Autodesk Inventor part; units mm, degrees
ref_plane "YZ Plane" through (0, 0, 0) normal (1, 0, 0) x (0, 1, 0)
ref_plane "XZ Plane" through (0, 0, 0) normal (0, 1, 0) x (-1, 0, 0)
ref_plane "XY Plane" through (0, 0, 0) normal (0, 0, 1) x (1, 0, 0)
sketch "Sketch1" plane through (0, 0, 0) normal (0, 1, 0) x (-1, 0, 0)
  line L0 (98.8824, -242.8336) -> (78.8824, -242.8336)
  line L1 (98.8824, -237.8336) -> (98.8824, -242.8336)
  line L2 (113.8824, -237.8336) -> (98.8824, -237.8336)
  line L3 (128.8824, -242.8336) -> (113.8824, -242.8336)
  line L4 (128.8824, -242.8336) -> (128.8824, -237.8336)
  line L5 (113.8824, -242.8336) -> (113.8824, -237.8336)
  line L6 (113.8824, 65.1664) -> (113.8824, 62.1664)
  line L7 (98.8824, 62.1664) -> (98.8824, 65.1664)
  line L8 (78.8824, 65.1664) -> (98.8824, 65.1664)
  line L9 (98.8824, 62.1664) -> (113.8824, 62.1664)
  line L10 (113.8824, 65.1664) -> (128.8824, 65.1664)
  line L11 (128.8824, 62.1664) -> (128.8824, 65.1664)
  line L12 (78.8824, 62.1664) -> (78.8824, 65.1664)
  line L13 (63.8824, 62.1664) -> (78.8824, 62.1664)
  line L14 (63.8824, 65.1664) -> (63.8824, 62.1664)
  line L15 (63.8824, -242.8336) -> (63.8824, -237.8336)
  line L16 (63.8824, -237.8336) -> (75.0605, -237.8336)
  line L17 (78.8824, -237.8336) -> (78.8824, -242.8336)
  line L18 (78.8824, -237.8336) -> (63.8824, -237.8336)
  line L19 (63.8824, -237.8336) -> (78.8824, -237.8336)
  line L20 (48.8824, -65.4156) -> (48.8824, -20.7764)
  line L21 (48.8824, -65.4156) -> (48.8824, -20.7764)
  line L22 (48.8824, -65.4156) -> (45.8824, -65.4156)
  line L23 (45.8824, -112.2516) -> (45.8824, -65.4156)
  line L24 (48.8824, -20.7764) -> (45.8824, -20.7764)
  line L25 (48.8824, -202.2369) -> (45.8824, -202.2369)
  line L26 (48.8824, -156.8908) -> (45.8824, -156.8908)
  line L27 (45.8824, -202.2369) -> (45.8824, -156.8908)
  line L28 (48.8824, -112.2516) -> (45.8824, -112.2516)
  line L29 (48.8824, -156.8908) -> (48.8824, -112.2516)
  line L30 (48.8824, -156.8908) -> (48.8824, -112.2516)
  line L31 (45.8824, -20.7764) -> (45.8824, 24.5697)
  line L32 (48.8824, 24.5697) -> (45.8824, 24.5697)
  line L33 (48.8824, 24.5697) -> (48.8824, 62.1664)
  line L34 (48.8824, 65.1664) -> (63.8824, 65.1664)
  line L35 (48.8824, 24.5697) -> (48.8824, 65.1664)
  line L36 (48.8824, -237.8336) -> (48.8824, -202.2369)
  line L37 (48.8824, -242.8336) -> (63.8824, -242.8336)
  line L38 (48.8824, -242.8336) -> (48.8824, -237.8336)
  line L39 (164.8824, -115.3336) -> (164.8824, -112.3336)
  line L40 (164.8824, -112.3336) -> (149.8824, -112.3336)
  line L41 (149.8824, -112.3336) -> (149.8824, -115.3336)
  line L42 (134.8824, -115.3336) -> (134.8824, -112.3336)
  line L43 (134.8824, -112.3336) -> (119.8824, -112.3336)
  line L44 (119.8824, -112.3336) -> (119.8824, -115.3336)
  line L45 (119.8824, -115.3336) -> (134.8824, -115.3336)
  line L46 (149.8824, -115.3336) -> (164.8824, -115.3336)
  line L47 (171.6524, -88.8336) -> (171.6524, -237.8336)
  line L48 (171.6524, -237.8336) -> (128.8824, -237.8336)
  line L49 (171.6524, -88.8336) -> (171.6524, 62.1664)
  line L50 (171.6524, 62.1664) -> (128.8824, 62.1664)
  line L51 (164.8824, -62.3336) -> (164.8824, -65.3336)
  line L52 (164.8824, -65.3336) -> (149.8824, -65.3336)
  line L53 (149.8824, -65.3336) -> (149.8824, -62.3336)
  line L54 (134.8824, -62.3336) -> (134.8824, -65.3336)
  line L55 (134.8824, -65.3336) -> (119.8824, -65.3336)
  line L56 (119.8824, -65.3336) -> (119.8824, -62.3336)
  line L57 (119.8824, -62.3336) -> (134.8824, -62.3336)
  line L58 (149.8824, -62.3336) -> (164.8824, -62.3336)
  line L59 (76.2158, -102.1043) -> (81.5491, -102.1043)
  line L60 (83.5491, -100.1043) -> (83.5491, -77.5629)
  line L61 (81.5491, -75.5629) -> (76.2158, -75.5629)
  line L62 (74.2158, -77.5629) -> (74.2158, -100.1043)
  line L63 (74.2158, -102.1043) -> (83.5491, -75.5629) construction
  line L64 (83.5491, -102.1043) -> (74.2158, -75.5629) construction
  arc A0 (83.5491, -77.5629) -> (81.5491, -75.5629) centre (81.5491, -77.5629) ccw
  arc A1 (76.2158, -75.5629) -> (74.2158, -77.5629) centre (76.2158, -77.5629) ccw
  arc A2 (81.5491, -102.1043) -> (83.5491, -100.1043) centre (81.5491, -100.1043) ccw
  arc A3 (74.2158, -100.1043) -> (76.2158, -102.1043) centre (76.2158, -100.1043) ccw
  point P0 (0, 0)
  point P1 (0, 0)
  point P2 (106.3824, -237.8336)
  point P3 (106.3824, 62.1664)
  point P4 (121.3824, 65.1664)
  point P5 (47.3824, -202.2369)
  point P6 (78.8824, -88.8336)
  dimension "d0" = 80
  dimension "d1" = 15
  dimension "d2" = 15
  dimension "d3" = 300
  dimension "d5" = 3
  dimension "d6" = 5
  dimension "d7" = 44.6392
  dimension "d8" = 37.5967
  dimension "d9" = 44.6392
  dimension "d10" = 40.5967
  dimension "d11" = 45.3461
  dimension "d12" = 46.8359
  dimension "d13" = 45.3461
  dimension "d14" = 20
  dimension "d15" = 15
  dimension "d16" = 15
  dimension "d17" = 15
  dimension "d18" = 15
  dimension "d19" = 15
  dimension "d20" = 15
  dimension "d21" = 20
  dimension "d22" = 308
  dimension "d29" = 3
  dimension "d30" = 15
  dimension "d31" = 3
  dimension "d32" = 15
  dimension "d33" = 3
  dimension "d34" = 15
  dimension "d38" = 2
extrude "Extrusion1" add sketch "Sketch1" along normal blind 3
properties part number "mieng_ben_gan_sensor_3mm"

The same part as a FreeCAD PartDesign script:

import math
import FreeCAD as App
import Part
import Sketcher

V = App.Vector

doc = App.newDocument("Part")
body = doc.addObject("PartDesign::Body", "Body")

sketch1 = body.newObject("Sketcher::SketchObject", "Sketch")
sketch1.AttachmentSupport = (doc.getObject("XZ_Plane"), [""])
sketch1.MapMode = "FlatFace"
sketch1.addGeometry([
    Part.LineSegment(V(-78.9, -242.8, 0), V(-98.9, -242.8, 0)),
    Part.LineSegment(V(-98.9, -242.8, 0), V(-98.9, -237.8, 0)),
    Part.LineSegment(V(-98.9, -237.8, 0), V(-113.9, -237.8, 0)),
    Part.LineSegment(V(-113.9, -237.8, 0), V(-113.9, -242.8, 0)),
    Part.LineSegment(V(-113.9, -242.8, 0), V(-128.9, -242.8, 0)),
    Part.LineSegment(V(-128.9, -242.8, 0), V(-128.9, -237.8, 0)),
    Part.LineSegment(V(-128.9, -237.8, 0), V(-171.7, -237.8, 0)),
    Part.LineSegment(V(-171.7, -237.8, 0), V(-171.7, 62.2, 0)),
    Part.LineSegment(V(-171.7, 62.2, 0), V(-128.9, 62.2, 0)),
    Part.LineSegment(V(-128.9, 62.2, 0), V(-128.9, 65.2, 0)),
    Part.LineSegment(V(-128.9, 65.2, 0), V(-113.9, 65.2, 0)),
    Part.LineSegment(V(-113.9, 65.2, 0), V(-113.9, 62.2, 0)),
    Part.LineSegment(V(-113.9, 62.2, 0), V(-98.9, 62.2, 0)),
    Part.LineSegment(V(-98.9, 62.2, 0), V(-98.9, 65.2, 0)),
    Part.LineSegment(V(-98.9, 65.2, 0), V(-78.9, 65.2, 0)),
    Part.LineSegment(V(-78.9, 65.2, 0), V(-78.9, 62.2, 0)),
    Part.LineSegment(V(-78.9, 62.2, 0), V(-63.9, 62.2, 0)),
    Part.LineSegment(V(-63.9, 62.2, 0), V(-63.9, 65.2, 0)),
    Part.LineSegment(V(-63.9, 65.2, 0), V(-48.9, 65.2, 0)),
    Part.LineSegment(V(-48.9, 65.2, 0), V(-48.9, 24.6, 0)),
    Part.LineSegment(V(-48.9, 24.6, 0), V(-45.9, 24.6, 0)),
    Part.LineSegment(V(-45.9, 24.6, 0), V(-45.9, -20.8, 0)),
    Part.LineSegment(V(-45.9, -20.8, 0), V(-48.9, -20.8, 0)),
    Part.LineSegment(V(-48.9, -20.8, 0), V(-48.9, -65.4, 0)),
    Part.LineSegment(V(-48.9, -65.4, 0), V(-45.9, -65.4, 0)),
    Part.LineSegment(V(-45.9, -65.4, 0), V(-45.9, -112.3, 0)),
    Part.LineSegment(V(-45.9, -112.3, 0), V(-48.9, -112.3, 0)),
    Part.LineSegment(V(-48.9, -112.3, 0), V(-48.9, -156.9, 0)),
    Part.LineSegment(V(-48.9, -156.9, 0), V(-45.9, -156.9, 0)),
    Part.LineSegment(V(-45.9, -156.9, 0), V(-45.9, -202.2, 0)),
    Part.LineSegment(V(-45.9, -202.2, 0), V(-48.9, -202.2, 0)),
    Part.LineSegment(V(-48.9, -202.2, 0), V(-48.9, -242.8, 0)),
    Part.LineSegment(V(-48.9, -242.8, 0), V(-63.9, -242.8, 0)),
    Part.LineSegment(V(-63.9, -242.8, 0), V(-63.9, -237.8, 0)),
    Part.LineSegment(V(-63.9, -237.8, 0), V(-78.9, -237.8, 0)),
    Part.LineSegment(V(-78.9, -237.8, 0), V(-78.9, -242.8, 0)),
    Part.LineSegment(V(-134.9, -112.3, 0), V(-134.9, -115.3, 0)),
    Part.LineSegment(V(-134.9, -115.3, 0), V(-119.9, -115.3, 0)),
    Part.LineSegment(V(-119.9, -115.3, 0), V(-119.9, -112.3, 0)),
    Part.LineSegment(V(-119.9, -112.3, 0), V(-134.9, -112.3, 0)),
    Part.LineSegment(V(-164.9, -112.3, 0), V(-164.9, -115.3, 0)),
    Part.LineSegment(V(-164.9, -115.3, 0), V(-149.9, -115.3, 0)),
    Part.LineSegment(V(-149.9, -115.3, 0), V(-149.9, -112.3, 0)),
    Part.LineSegment(V(-149.9, -112.3, 0), V(-164.9, -112.3, 0)),
    Part.LineSegment(V(-81.5, -102.1, 0), V(-76.2, -102.1, 0)),
    Part.ArcOfCircle(Part.Circle(V(-76.2, -100.1, 0), V(0, 0, 1), 2), math.radians(-90), math.radians(0)),
    Part.LineSegment(V(-74.2, -100.1, 0), V(-74.2, -77.6, 0)),
    Part.ArcOfCircle(Part.Circle(V(-76.2, -77.6, 0), V(0, 0, 1), 2), math.radians(0), math.radians(90)),
    Part.LineSegment(V(-76.2, -75.6, 0), V(-81.5, -75.6, 0)),
    Part.ArcOfCircle(Part.Circle(V(-81.5, -77.6, 0), V(0, 0, 1), 2), math.radians(90), math.radians(180)),
    Part.LineSegment(V(-83.5, -77.6, 0), V(-83.5, -100.1, 0)),
    Part.ArcOfCircle(Part.Circle(V(-81.5, -100.1, 0), V(0, 0, 1), 2), math.radians(180), math.radians(270)),
    Part.LineSegment(V(-119.9, -62.3, 0), V(-134.9, -62.3, 0)),
    Part.LineSegment(V(-134.9, -62.3, 0), V(-134.9, -65.3, 0)),
    Part.LineSegment(V(-134.9, -65.3, 0), V(-119.9, -65.3, 0)),
    Part.LineSegment(V(-119.9, -65.3, 0), V(-119.9, -62.3, 0)),
    Part.LineSegment(V(-149.9, -62.3, 0), V(-164.9, -62.3, 0)),
    Part.LineSegment(V(-164.9, -62.3, 0), V(-164.9, -65.3, 0)),
    Part.LineSegment(V(-164.9, -65.3, 0), V(-149.9, -65.3, 0)),
    Part.LineSegment(V(-149.9, -65.3, 0), V(-149.9, -62.3, 0)),
], False)
sketch1.addConstraint([
    Sketcher.Constraint("Coincident", 0, 2, 1, 1),
    Sketcher.Constraint("Coincident", 1, 2, 2, 1),
    Sketcher.Constraint("Coincident", 2, 2, 3, 1),
    Sketcher.Constraint("Coincident", 3, 2, 4, 1),
    Sketcher.Constraint("Coincident", 4, 2, 5, 1),
    Sketcher.Constraint("Coincident", 5, 2, 6, 1),
    Sketcher.Constraint("Coincident", 6, 2, 7, 1),
    Sketcher.Constraint("Coincident", 7, 2, 8, 1),
    Sketcher.Constraint("Coincident", 8, 2, 9, 1),
    Sketcher.Constraint("Coincident", 9, 2, 10, 1),
    Sketcher.Constraint("Coincident", 10, 2, 11, 1),
    Sketcher.Constraint("Coincident", 11, 2, 12, 1),
    Sketcher.Constraint("Coincident", 12, 2, 13, 1),
    Sketcher.Constraint("Coincident", 13, 2, 14, 1),
    Sketcher.Constraint("Coincident", 14, 2, 15, 1),
    Sketcher.Constraint("Coincident", 15, 2, 16, 1),
    Sketcher.Constraint("Coincident", 16, 2, 17, 1),
    Sketcher.Constraint("Coincident", 17, 2, 18, 1),
    Sketcher.Constraint("Coincident", 18, 2, 19, 1),
    Sketcher.Constraint("Coincident", 19, 2, 20, 1),
    Sketcher.Constraint("Coincident", 20, 2, 21, 1),
    Sketcher.Constraint("Coincident", 21, 2, 22, 1),
    Sketcher.Constraint("Coincident", 22, 2, 23, 1),
    Sketcher.Constraint("Coincident", 23, 2, 24, 1),
    Sketcher.Constraint("Coincident", 24, 2, 25, 1),
    Sketcher.Constraint("Coincident", 25, 2, 26, 1),
    Sketcher.Constraint("Coincident", 26, 2, 27, 1),
    Sketcher.Constraint("Coincident", 27, 2, 28, 1),
    Sketcher.Constraint("Coincident", 28, 2, 29, 1),
    Sketcher.Constraint("Coincident", 29, 2, 30, 1),
    Sketcher.Constraint("Coincident", 30, 2, 31, 1),
    Sketcher.Constraint("Coincident", 31, 2, 32, 1),
    Sketcher.Constraint("Coincident", 32, 2, 33, 1),
    Sketcher.Constraint("Coincident", 33, 2, 34, 1),
    Sketcher.Constraint("Coincident", 34, 2, 35, 1),
    Sketcher.Constraint("Coincident", 35, 2, 0, 1),
    Sketcher.Constraint("Coincident", 36, 2, 37, 1),
    Sketcher.Constraint("Coincident", 37, 2, 38, 1),
    Sketcher.Constraint("Coincident", 38, 2, 39, 1),
    Sketcher.Constraint("Coincident", 39, 2, 36, 1),
    Sketcher.Constraint("Coincident", 40, 2, 41, 1),
    Sketcher.Constraint("Coincident", 41, 2, 42, 1),
    Sketcher.Constraint("Coincident", 42, 2, 43, 1),
    Sketcher.Constraint("Coincident", 43, 2, 40, 1),
    Sketcher.Constraint("Tangent", 44, 2, 45, 1),
    Sketcher.Constraint("Tangent", 45, 2, 46, 1),
    Sketcher.Constraint("Tangent", 46, 2, 47, 1),
    Sketcher.Constraint("Tangent", 47, 2, 48, 1),
    Sketcher.Constraint("Tangent", 48, 2, 49, 1),
    Sketcher.Constraint("Tangent", 49, 2, 50, 1),
    Sketcher.Constraint("Tangent", 50, 2, 51, 1),
    Sketcher.Constraint("Tangent", 51, 2, 44, 1),
    Sketcher.Constraint("Coincident", 52, 2, 53, 1),
    Sketcher.Constraint("Coincident", 53, 2, 54, 1),
    Sketcher.Constraint("Coincident", 54, 2, 55, 1),
    Sketcher.Constraint("Coincident", 55, 2, 52, 1),
    Sketcher.Constraint("Coincident", 56, 2, 57, 1),
    Sketcher.Constraint("Coincident", 57, 2, 58, 1),
    Sketcher.Constraint("Coincident", 58, 2, 59, 1),
    Sketcher.Constraint("Coincident", 59, 2, 56, 1),
    Sketcher.Constraint("Horizontal", 0),
    Sketcher.Constraint("Vertical", 1),
    Sketcher.Constraint("Horizontal", 2),
    Sketcher.Constraint("Vertical", 3),
    Sketcher.Constraint("Horizontal", 4),
    Sketcher.Constraint("Vertical", 5),
    Sketcher.Constraint("Horizontal", 6),
    Sketcher.Constraint("Vertical", 7),
    Sketcher.Constraint("Horizontal", 8),
    Sketcher.Constraint("Vertical", 9),
    Sketcher.Constraint("Horizontal", 10),
    Sketcher.Constraint("Vertical", 11),
    Sketcher.Constraint("Horizontal", 12),
    Sketcher.Constraint("Vertical", 13),
    Sketcher.Constraint("Horizontal", 14),
    Sketcher.Constraint("Vertical", 15),
    Sketcher.Constraint("Horizontal", 16),
    Sketcher.Constraint("Vertical", 17),
    Sketcher.Constraint("Horizontal", 18),
    Sketcher.Constraint("Vertical", 19),
    Sketcher.Constraint("Horizontal", 20),
    Sketcher.Constraint("Vertical", 21),
    Sketcher.Constraint("Horizontal", 22),
    Sketcher.Constraint("Vertical", 23),
    Sketcher.Constraint("Horizontal", 24),
    Sketcher.Constraint("Vertical", 25),
    Sketcher.Constraint("Horizontal", 26),
    Sketcher.Constraint("Vertical", 27),
    Sketcher.Constraint("Horizontal", 28),
    Sketcher.Constraint("Vertical", 29),
    Sketcher.Constraint("Horizontal", 30),
    Sketcher.Constraint("Vertical", 31),
    Sketcher.Constraint("Horizontal", 32),
    Sketcher.Constraint("Vertical", 33),
    Sketcher.Constraint("Horizontal", 34),
    Sketcher.Constraint("Vertical", 35),
    Sketcher.Constraint("Vertical", 36),
    Sketcher.Constraint("Horizontal", 37),
    Sketcher.Constraint("Vertical", 38),
    Sketcher.Constraint("Horizontal", 39),
    Sketcher.Constraint("Vertical", 40),
    Sketcher.Constraint("Horizontal", 41),
    Sketcher.Constraint("Vertical", 42),
    Sketcher.Constraint("Horizontal", 43),
    Sketcher.Constraint("Horizontal", 44),
    Sketcher.Constraint("Vertical", 46),
    Sketcher.Constraint("Horizontal", 48),
    Sketcher.Constraint("Vertical", 50),
    Sketcher.Constraint("Horizontal", 52),
    Sketcher.Constraint("Vertical", 53),
    Sketcher.Constraint("Horizontal", 54),
    Sketcher.Constraint("Vertical", 55),
    Sketcher.Constraint("Horizontal", 56),
    Sketcher.Constraint("Vertical", 57),
    Sketcher.Constraint("Horizontal", 58),
    Sketcher.Constraint("Vertical", 59),
    Sketcher.Constraint("Equal", 45, 47),
    Sketcher.Constraint("Equal", 47, 49),
    Sketcher.Constraint("Equal", 49, 51),
    Sketcher.Constraint("Horizontal", 0, 2, 3, 2),
    Sketcher.Constraint("Horizontal", 2, 2, 5, 2),
    Sketcher.Constraint("Horizontal", 8, 2, 11, 2),
    Sketcher.Constraint("Horizontal", 10, 2, 13, 2),
    Sketcher.Constraint("Horizontal", 12, 2, 15, 2),
    Sketcher.Constraint("Horizontal", 14, 2, 17, 2),
    Sketcher.Constraint("Horizontal", 4, 2, 31, 2),
    Sketcher.Constraint("Horizontal", 6, 2, 33, 2),
    Sketcher.Constraint("Horizontal", 37, 2, 40, 2),
    Sketcher.Constraint("Horizontal", 39, 2, 42, 2),
    Sketcher.Constraint("Horizontal", 55, 2, 56, 2),
    Sketcher.Constraint("Horizontal", 54, 2, 57, 2),
    Sketcher.Constraint("Vertical", 5, 2, 8, 2),
    Sketcher.Constraint("Vertical", 3, 2, 10, 2),
    Sketcher.Constraint("Vertical", 1, 2, 12, 2),
    Sketcher.Constraint("Vertical", 19, 2, 22, 2),
    Sketcher.Constraint("Vertical", 21, 2, 24, 2),
    Sketcher.Constraint("Vertical", 23, 2, 26, 2),
    Sketcher.Constraint("Vertical", 25, 2, 28, 2),
    Sketcher.Constraint("Vertical", 27, 2, 30, 2),
    Sketcher.Constraint("Vertical", 17, 2, 32, 2),
    Sketcher.Constraint("Vertical", 15, 2, 34, 2),
    Sketcher.Constraint("Vertical", 39, 2, 52, 2),
    Sketcher.Constraint("Vertical", 38, 2, 54, 2),
    Sketcher.Constraint("Vertical", 43, 2, 56, 2),
    Sketcher.Constraint("Vertical", 42, 2, 58, 2),
    Sketcher.Constraint("Equal", 2, 4),
    Sketcher.Constraint("Equal", 12, 16),
    Sketcher.Constraint("Equal", 16, 18),
    Sketcher.Constraint("Equal", 34, 37),
    Sketcher.Constraint("Equal", 39, 41),
    Sketcher.Constraint("Equal", 30, 9),
    Sketcher.Constraint("Equal", 23, 27),
    Sketcher.Constraint("Equal", 21, 29),
    Sketcher.Constraint("Equal", 19, 31),
    Sketcher.Constraint("Equal", 17, 36),
    Sketcher.Constraint("Equal", 42, 53),
    Sketcher.Constraint("Radius", 45, 2.0),
    Sketcher.Constraint("DistanceX", 0, 2, 0, 1, 20.0),
    Sketcher.Constraint("DistanceX", 2, 2, 2, 1, 15.0),
    Sketcher.Constraint("DistanceX", 20, 1, 20, 2, 3.0),
    Sketcher.Constraint("DistanceY", 1, 1, 1, 2, 5.0),
    Sketcher.Constraint("DistanceY", 7, 1, 7, 2, 300.0),
    Sketcher.Constraint("DistanceY", 21, 2, 21, 1, 45.346),
    Sketcher.Constraint("DistanceY", 25, 2, 25, 1, 46.836),
    Sketcher.Constraint("DistanceY", 19, 2, 19, 1, 40.5967),
    Sketcher.Constraint("DistanceX", 6, 2, 6, 1, 42.77),
    Sketcher.Constraint("DistanceX", 44, 1, 44, 2, 5.3333),
    Sketcher.Constraint("DistanceY", 46, 1, 46, 2, 22.5414),
    Sketcher.Constraint("DistanceY", 47, 3, -1, 1, 77.563),
    Sketcher.Constraint("DistanceX", 49, 3, -1, 1, 81.549),
    Sketcher.Constraint("DistanceY", 29, 2, -1, 1, 202.237),
    Sketcher.Constraint("DistanceX", 0, 2, -1, 1, 98.8824),
    Sketcher.Constraint("DistanceX", 36, 2, -1, 1, 134.8824),
    Sketcher.Constraint("DistanceY", 36, 2, -1, 1, 115.3336),
    Sketcher.Constraint("DistanceX", 40, 2, -1, 1, 164.8824),
    Sketcher.Constraint("DistanceY", 52, 2, -1, 1, 62.3336),
])
pad1 = body.newObject("PartDesign::Pad", "Pad")
pad1.Profile = sketch1
pad1.Length = 3
pad1.Reversed = True

doc.recompute()
